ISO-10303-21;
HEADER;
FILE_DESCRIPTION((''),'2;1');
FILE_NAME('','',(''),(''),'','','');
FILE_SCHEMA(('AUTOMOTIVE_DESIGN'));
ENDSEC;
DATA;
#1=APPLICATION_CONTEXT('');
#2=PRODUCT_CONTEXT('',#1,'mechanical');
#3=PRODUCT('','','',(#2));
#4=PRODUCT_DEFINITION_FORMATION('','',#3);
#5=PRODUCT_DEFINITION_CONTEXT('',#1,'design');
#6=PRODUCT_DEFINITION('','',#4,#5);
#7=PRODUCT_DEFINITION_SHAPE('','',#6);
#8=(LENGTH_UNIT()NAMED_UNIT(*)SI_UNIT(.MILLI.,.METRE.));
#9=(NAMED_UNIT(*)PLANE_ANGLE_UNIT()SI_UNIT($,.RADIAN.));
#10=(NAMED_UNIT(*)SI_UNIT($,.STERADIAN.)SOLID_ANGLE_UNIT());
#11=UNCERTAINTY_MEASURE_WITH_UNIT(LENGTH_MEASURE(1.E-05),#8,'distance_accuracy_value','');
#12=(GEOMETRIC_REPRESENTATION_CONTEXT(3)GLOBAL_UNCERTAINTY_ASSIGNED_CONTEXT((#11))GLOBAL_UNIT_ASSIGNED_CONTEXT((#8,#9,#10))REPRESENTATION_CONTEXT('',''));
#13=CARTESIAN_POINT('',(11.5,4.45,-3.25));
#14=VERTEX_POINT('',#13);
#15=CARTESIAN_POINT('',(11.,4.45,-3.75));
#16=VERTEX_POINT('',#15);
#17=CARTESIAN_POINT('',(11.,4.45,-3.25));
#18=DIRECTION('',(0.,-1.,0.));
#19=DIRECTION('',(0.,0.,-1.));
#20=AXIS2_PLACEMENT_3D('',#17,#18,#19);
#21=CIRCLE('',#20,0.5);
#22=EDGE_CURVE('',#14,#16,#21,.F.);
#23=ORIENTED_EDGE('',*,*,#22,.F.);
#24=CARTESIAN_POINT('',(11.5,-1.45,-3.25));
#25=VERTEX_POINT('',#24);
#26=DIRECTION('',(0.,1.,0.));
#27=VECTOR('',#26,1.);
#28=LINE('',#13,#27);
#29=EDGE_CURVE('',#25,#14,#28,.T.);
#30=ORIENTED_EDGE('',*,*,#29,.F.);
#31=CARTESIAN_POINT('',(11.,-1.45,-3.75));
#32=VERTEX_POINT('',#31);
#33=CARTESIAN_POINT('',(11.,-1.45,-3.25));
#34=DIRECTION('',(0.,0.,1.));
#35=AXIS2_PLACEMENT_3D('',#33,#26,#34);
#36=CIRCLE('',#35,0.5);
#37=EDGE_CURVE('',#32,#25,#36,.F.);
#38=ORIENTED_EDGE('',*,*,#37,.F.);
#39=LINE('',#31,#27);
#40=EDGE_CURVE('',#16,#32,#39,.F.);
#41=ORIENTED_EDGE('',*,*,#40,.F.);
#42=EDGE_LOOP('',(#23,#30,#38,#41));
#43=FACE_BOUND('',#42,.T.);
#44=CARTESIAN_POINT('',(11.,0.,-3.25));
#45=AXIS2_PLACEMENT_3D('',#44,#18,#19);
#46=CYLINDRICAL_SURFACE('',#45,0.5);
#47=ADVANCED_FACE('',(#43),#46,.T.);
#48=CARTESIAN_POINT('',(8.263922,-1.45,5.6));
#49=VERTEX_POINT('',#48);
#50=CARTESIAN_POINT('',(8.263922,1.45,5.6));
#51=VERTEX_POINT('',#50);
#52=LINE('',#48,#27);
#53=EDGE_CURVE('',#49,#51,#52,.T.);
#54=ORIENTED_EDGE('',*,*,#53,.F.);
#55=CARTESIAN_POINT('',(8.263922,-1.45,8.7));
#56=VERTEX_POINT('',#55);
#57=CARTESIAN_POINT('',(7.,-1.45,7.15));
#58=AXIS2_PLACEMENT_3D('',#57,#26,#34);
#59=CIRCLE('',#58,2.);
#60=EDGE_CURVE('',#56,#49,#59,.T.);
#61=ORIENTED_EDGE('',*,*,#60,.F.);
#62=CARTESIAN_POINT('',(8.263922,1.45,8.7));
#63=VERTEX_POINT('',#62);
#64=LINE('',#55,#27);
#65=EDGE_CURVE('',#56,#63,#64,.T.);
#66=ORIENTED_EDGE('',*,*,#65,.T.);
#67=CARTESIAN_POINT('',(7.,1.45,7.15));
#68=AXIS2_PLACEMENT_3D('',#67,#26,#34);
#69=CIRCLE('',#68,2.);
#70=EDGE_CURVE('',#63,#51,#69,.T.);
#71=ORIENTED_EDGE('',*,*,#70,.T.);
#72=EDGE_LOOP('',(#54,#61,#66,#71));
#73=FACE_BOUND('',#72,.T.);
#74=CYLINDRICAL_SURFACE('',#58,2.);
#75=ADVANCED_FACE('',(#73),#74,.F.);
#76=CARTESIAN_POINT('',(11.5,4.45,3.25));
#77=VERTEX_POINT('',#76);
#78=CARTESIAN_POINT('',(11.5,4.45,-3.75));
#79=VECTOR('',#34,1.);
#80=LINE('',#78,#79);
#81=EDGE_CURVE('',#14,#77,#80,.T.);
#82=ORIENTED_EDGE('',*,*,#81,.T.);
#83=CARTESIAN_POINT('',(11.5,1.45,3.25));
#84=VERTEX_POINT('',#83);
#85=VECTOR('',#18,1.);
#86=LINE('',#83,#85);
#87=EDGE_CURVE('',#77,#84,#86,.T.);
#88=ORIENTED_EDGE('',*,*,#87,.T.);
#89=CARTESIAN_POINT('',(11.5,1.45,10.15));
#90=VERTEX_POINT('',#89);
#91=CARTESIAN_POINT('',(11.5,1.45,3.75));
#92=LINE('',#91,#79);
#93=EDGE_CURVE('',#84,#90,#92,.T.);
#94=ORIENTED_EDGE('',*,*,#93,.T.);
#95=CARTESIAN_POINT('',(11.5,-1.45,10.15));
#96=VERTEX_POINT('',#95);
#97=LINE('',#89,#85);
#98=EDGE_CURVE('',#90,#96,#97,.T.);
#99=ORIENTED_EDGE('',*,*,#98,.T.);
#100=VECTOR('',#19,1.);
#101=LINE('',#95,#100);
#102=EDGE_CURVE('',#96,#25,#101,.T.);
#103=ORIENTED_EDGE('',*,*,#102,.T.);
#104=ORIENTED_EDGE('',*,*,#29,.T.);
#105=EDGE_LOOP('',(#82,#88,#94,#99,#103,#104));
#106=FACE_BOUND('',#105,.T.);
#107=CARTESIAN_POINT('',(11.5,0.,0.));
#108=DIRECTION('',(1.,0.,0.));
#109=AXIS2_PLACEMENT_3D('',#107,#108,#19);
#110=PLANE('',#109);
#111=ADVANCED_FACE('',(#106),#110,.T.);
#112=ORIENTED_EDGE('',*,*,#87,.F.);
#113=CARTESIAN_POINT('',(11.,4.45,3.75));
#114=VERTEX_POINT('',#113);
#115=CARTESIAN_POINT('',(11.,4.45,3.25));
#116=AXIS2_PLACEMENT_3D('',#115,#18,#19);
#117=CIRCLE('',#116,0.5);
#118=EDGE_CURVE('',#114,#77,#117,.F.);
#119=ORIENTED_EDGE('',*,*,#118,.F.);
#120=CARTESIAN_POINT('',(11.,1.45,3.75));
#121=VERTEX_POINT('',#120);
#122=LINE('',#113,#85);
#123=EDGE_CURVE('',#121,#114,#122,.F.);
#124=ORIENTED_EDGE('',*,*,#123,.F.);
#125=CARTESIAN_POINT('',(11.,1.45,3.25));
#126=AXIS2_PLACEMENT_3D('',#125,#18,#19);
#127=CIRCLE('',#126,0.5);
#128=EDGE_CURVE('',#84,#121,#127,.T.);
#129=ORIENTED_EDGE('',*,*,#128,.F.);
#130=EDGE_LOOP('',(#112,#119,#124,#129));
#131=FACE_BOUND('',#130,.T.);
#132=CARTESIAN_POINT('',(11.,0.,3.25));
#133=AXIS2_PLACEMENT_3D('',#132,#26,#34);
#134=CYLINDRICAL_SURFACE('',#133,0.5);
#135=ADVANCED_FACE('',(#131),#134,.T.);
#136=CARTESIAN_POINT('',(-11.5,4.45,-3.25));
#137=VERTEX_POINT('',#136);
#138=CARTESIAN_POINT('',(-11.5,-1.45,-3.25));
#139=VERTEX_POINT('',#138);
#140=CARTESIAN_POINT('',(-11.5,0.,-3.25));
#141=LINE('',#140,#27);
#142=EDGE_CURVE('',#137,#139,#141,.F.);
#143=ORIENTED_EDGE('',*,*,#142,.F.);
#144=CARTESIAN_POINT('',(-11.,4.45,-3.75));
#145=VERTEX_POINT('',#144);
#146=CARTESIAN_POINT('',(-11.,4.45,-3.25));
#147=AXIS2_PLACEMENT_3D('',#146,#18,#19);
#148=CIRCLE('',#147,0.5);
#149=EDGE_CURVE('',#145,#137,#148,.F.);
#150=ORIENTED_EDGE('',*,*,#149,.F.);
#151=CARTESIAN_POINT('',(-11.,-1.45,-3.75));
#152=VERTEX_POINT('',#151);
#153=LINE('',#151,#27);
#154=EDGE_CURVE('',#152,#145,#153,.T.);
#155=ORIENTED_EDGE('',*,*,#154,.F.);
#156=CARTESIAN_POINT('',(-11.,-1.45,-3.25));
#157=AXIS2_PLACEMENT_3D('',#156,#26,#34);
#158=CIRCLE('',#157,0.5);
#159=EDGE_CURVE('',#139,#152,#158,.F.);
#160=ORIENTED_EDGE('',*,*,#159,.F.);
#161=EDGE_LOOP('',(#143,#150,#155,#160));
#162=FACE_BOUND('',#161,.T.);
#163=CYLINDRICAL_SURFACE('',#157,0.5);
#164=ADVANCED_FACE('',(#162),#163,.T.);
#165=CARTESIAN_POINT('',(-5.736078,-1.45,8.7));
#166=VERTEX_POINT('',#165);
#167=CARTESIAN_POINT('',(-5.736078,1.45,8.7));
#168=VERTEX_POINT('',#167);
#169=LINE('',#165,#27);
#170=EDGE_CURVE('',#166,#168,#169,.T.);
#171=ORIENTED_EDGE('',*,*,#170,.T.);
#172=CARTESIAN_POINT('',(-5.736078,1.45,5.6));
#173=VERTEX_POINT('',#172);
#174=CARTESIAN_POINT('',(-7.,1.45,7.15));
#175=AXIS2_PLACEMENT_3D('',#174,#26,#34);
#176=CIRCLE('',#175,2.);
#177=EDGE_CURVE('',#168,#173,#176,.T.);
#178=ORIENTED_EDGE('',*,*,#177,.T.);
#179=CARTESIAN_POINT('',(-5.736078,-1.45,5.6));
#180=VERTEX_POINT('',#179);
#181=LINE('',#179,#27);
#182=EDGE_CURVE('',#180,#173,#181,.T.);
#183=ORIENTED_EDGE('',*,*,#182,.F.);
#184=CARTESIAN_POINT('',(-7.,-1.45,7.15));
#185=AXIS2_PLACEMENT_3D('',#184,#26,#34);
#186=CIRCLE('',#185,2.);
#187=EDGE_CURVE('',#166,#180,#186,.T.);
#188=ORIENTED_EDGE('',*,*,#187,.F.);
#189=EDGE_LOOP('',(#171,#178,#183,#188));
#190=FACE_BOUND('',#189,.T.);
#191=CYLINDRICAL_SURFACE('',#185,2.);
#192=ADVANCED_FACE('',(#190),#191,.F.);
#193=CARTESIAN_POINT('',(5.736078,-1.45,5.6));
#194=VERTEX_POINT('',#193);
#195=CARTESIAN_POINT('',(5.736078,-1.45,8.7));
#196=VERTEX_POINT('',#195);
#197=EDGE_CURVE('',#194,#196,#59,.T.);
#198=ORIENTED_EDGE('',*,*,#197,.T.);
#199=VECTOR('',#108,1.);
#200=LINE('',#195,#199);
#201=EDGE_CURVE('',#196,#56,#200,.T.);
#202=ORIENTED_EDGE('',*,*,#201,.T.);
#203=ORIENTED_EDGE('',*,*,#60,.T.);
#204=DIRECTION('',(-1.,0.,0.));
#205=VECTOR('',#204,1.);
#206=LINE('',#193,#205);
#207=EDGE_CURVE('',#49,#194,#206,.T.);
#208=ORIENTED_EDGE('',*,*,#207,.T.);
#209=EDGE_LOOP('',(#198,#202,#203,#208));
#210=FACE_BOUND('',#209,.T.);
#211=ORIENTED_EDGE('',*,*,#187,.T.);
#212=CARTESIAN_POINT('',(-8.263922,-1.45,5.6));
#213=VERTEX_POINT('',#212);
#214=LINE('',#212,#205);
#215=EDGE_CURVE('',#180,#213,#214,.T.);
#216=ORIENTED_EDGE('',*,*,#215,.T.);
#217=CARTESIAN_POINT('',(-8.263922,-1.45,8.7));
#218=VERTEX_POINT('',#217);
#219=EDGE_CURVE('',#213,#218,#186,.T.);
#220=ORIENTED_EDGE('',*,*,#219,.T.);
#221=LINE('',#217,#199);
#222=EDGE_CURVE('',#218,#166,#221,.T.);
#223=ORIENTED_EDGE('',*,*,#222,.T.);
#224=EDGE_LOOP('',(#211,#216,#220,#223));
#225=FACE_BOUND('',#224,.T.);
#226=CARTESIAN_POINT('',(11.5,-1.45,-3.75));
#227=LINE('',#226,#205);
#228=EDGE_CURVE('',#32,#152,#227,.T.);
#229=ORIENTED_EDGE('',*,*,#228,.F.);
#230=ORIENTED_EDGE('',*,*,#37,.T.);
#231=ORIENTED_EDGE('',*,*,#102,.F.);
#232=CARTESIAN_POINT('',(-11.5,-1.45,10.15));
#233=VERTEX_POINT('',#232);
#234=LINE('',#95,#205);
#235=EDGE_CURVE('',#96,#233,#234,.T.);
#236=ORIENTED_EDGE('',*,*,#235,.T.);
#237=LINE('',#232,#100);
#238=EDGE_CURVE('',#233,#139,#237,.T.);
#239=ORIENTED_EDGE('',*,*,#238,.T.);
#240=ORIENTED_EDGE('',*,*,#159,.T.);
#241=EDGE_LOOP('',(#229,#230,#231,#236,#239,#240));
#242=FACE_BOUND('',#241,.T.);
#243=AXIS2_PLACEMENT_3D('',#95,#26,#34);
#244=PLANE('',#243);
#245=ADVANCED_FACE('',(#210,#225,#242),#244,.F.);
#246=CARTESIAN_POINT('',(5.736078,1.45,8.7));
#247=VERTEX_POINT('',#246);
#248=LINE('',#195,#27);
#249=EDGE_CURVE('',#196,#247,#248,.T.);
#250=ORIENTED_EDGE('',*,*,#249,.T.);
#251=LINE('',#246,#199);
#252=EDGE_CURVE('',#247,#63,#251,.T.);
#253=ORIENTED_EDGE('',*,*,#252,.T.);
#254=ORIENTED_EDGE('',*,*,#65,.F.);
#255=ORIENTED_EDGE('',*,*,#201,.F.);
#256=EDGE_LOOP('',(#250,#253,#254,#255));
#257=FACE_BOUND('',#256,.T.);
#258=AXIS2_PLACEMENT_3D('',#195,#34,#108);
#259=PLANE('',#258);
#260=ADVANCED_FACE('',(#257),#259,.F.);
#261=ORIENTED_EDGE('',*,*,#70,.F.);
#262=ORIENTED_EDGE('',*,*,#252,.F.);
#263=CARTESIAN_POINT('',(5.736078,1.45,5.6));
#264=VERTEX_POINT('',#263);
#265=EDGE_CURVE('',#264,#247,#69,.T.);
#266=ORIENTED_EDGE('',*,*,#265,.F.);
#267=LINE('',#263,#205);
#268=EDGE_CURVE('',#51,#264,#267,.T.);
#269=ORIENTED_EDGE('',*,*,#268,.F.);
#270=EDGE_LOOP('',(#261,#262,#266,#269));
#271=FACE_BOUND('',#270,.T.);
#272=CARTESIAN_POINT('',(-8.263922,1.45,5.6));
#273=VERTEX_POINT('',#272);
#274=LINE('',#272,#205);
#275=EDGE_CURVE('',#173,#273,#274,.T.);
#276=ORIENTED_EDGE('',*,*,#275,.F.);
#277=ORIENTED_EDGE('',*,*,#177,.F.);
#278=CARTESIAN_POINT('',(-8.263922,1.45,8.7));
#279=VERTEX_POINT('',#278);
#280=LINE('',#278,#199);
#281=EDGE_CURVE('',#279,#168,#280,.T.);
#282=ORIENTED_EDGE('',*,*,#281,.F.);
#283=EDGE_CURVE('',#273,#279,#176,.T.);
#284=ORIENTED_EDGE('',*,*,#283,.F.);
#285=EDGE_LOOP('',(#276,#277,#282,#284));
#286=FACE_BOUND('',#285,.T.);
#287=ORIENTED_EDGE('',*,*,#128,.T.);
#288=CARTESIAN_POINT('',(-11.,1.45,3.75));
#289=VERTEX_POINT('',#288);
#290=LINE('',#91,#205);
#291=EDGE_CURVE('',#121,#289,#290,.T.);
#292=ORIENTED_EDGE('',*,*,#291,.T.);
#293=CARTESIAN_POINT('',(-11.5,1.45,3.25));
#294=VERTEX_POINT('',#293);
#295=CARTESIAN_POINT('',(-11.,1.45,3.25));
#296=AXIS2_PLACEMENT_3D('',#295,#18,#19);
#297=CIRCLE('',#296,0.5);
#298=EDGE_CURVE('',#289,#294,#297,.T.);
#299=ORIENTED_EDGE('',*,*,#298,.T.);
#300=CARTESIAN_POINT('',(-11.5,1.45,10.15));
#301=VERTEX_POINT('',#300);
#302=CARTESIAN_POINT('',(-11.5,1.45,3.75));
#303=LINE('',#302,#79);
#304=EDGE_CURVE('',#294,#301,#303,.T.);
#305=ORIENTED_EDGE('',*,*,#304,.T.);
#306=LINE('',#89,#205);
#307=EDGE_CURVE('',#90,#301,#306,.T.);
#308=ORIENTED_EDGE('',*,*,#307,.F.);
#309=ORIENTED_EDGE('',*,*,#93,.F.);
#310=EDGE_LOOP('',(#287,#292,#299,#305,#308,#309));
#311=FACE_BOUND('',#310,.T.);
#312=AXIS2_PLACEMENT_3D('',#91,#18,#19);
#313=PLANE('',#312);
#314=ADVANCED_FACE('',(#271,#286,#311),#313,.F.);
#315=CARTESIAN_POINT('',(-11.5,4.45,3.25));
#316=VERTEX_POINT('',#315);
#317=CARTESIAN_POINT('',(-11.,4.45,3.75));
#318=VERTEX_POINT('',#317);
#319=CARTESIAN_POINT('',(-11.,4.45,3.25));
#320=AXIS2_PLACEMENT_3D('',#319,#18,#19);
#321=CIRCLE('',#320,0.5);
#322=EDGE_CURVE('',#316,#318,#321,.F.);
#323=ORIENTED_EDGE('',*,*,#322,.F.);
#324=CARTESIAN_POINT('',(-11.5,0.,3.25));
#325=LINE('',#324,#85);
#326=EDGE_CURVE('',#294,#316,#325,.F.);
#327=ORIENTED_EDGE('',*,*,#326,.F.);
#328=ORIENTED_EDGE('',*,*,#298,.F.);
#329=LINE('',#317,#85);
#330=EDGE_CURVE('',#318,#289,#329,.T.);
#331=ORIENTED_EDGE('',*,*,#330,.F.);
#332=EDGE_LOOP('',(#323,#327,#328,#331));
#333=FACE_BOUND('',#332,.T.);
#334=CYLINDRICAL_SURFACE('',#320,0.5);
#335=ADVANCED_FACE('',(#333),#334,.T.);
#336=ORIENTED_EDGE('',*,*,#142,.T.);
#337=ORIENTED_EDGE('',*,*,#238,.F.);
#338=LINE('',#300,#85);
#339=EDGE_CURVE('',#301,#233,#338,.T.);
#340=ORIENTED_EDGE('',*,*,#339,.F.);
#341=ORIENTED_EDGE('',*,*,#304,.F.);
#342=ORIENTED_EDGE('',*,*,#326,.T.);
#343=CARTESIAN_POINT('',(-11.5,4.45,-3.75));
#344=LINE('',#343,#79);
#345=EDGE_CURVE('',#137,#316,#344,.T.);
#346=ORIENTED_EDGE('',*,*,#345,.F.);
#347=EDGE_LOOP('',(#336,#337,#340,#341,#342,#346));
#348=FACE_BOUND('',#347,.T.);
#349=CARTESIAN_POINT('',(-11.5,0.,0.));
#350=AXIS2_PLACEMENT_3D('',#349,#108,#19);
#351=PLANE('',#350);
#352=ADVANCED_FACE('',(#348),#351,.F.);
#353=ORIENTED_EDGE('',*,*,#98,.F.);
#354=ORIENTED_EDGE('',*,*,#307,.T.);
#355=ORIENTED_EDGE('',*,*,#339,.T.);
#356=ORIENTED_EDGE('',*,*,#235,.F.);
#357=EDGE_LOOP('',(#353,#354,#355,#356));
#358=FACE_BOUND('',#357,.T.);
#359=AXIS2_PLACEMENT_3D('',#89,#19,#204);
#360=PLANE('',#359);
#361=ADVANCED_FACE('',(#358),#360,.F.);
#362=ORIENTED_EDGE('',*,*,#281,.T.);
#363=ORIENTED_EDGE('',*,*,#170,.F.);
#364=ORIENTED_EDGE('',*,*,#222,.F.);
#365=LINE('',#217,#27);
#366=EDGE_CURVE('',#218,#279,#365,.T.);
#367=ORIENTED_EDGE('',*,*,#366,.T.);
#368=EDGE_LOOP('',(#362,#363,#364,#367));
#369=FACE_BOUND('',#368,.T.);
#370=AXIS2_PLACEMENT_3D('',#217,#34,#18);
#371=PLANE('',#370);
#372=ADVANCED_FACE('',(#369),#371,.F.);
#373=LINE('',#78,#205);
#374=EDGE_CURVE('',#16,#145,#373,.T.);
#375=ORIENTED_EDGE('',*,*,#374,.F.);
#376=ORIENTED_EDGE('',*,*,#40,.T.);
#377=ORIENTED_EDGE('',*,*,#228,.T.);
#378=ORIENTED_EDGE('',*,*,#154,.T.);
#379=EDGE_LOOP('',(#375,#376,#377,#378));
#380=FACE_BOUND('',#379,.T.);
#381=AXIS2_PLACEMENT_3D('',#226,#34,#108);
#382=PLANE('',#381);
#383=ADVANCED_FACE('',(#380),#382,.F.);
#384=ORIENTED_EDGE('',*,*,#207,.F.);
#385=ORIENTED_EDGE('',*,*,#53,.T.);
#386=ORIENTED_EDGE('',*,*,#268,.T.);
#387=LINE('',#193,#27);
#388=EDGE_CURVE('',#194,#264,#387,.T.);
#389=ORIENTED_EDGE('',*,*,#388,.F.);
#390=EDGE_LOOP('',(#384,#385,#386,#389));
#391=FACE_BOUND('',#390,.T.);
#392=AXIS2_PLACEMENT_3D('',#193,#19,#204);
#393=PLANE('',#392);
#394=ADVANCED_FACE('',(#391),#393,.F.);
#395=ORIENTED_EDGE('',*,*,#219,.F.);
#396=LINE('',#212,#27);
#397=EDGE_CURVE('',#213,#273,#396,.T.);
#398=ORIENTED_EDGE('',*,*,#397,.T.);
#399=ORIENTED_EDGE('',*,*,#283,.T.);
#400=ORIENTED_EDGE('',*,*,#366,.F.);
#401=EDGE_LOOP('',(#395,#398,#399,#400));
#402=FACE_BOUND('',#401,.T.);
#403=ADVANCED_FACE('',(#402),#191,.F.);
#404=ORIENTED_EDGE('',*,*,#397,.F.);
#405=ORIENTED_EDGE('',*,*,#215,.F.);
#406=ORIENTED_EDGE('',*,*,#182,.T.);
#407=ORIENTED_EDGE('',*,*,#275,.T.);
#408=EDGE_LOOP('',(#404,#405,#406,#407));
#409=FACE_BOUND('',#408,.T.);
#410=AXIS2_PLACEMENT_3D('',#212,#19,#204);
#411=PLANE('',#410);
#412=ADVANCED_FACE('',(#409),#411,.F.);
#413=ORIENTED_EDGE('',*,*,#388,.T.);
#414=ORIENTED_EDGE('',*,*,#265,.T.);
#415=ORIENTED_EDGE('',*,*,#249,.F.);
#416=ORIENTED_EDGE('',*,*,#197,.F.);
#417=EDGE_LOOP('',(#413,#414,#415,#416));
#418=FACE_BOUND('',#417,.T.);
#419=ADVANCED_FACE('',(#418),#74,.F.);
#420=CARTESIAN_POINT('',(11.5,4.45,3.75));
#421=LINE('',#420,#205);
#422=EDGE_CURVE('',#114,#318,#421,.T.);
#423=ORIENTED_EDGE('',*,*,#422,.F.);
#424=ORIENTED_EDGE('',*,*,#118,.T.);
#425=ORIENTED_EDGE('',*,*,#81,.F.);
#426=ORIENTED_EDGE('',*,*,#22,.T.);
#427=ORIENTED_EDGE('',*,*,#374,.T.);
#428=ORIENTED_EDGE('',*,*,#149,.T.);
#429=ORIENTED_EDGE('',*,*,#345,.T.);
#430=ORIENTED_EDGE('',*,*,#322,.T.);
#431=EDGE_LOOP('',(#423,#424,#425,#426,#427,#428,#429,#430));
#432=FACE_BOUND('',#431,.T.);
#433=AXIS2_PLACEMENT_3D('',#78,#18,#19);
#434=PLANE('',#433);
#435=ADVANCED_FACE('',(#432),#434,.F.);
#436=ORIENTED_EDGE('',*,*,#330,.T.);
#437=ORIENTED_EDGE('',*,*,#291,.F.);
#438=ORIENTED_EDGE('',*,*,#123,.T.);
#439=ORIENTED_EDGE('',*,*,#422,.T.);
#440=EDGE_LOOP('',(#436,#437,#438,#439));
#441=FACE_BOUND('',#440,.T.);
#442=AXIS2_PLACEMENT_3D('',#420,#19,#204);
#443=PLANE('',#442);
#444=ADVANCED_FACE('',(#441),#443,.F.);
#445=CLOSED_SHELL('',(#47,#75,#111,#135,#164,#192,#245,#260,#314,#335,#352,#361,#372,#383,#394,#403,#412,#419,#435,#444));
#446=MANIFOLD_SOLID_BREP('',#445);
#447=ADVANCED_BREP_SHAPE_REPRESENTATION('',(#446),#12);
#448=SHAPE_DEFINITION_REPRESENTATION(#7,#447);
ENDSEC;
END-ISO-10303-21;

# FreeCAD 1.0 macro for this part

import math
import FreeCAD as App
import Part
import Sketcher

V = App.Vector


def edges_at(feature, points):
    """Names of the edges that pass closest to the given points."""
    edges = feature.Shape.Edges
    near = lambda p: min(range(len(edges)), key=lambda i: edges[i].distToShape(Part.Vertex(*p))[0])
    return sorted({f"Edge{near(p) + 1}" for p in points})


def add_polygon(sketch, points):
    """Adds a closed chain of lines whose ends are joined by coincident constraints."""
    first, n = sketch.GeometryCount, len(points)
    for a, b in zip(points, points[1:] + points[:1]):
        sketch.addGeometry(Part.LineSegment(App.Vector(*a, 0), App.Vector(*b, 0)), False)
    for i in range(n):
        sketch.addConstraint(Sketcher.Constraint("Coincident", first + i, 2, first + (i + 1) % n, 1))

doc = App.newDocument("Part")
body = doc.addObject("PartDesign::Body", "Body")

sketch1 = doc.addObject("Sketcher::SketchObject", "Sketch")
body.addObject(sketch1)
sketch1.AttachmentSupport = (doc.YZ_Plane, [""])
sketch1.MapMode = "FlatFace"
add_polygon(sketch1, [(-1.4, 10.2), (-1.4, -3.8), (4.5, -3.8), (4.5, 3.8), (1.4, 3.8), (1.4, 10.2)])
sketch1.addConstraint([
    Sketcher.Constraint("Vertical", 0),
    Sketcher.Constraint("Horizontal", 1),
    Sketcher.Constraint("Vertical", 2),
    Sketcher.Constraint("Horizontal", 3),
    Sketcher.Constraint("Vertical", 4),
    Sketcher.Constraint("Horizontal", 5),
    Sketcher.Constraint("Symmetric", 0, 2, 3, 2, -1, 1),
    Sketcher.Constraint("DistanceX", 3, 2, 3, 1, 3.0),
    Sketcher.Constraint("DistanceX", 1, 1, 1, 2, 5.9),
    Sketcher.Constraint("DistanceY", 0, 2, 0, 1, 13.9),
    Sketcher.Constraint("DistanceY", 2, 1, 2, 2, 7.5),
])
pad1 = doc.addObject("PartDesign::Pad", "Pad")
body.addObject(pad1)
pad1.Profile = sketch1
pad1.Length = 23
pad1.Midplane = True

sketch2 = doc.addObject("Sketcher::SketchObject", "Sketch001")
body.addObject(sketch2)
sketch2.AttachmentSupport = (doc.XZ_Plane, [""])
sketch2.MapMode = "FlatFace"
sketch2.AttachmentOffset = App.Placement(V(0, 0, -1.45), App.Rotation())
sketch2.addGeometry([
    Part.LineSegment(V(-5.7, 5.6, 0), V(-8.3, 5.6, 0)),
    Part.ArcOfCircle(Part.Circle(V(-7, 7.2, 0), V(0, 0, 1), 2), math.radians(129), math.radians(231)),
    Part.LineSegment(V(-8.3, 8.7, 0), V(-5.7, 8.7, 0)),
    Part.ArcOfCircle(Part.Circle(V(-7, 7.2, 0), V(0, 0, 1), 2), math.radians(-51), math.radians(51)),
    Part.LineSegment(V(8.3, 5.6, 0), V(5.7, 5.6, 0)),
    Part.ArcOfCircle(Part.Circle(V(7, 7.2, 0), V(0, 0, 1), 2), math.radians(129), math.radians(231)),
    Part.LineSegment(V(5.7, 8.7, 0), V(8.3, 8.7, 0)),
    Part.ArcOfCircle(Part.Circle(V(7, 7.2, 0), V(0, 0, 1), 2), math.radians(-51), math.radians(51)),
], False)
sketch2.addConstraint([
    Sketcher.Constraint("Coincident", 0, 2, 1, 2),
    Sketcher.Constraint("Coincident", 1, 1, 2, 1),
    Sketcher.Constraint("Coincident", 2, 2, 3, 2),
    Sketcher.Constraint("Coincident", 3, 1, 0, 1),
    Sketcher.Constraint("Coincident", 4, 2, 5, 2),
    Sketcher.Constraint("Coincident", 5, 1, 6, 1),
    Sketcher.Constraint("Coincident", 6, 2, 7, 2),
    Sketcher.Constraint("Coincident", 7, 1, 4, 1),
    Sketcher.Constraint("Horizontal", 0),
    Sketcher.Constraint("Horizontal", 2),
    Sketcher.Constraint("Horizontal", 4),
    Sketcher.Constraint("Horizontal", 6),
    Sketcher.Constraint("Coincident", 3, 3, 1, 3),
    Sketcher.Constraint("Coincident", 7, 3, 5, 3),
    Sketcher.Constraint("Equal", 1, 3),
    Sketcher.Constraint("Equal", 3, 5),
    Sketcher.Constraint("Equal", 5, 7),
    Sketcher.Constraint("Symmetric", 1, 3, 5, 3, -2),
    Sketcher.Constraint("Horizontal", 3, 1, 4, 2),
    Sketcher.Constraint("Horizontal", 2, 2, 5, 1),
    Sketcher.Constraint("Vertical", 0, 2, 1, 1),
    Sketcher.Constraint("Radius", 1, 2.0),
    Sketcher.Constraint("DistanceX", 1, 3, -1, 1, 7.0),
    Sketcher.Constraint("DistanceY", -1, 1, 0, 2, 5.6),
    Sketcher.Constraint("DistanceY", -1, 1, 1, 1, 8.7),
])
pocket1 = doc.addObject("PartDesign::Pocket", "Pocket")
body.addObject(pocket1)
pocket1.Profile = sketch2
pocket1.Type = "ThroughAll"
pocket1.Reversed = True
doc.recompute()

fillet = doc.addObject("PartDesign::Fillet", "Fillet")
body.addObject(fillet)
fillet.Base = (pocket1, edges_at(pocket1, [
    (11.5, 1.5, -3.75),
    (11.5, 2.95, 3.75),
    (-11.5, 2.95, 3.75),
    (-11.5, 1.5, -3.75),
]))
fillet.Radius = 0.5

doc.recompute()
